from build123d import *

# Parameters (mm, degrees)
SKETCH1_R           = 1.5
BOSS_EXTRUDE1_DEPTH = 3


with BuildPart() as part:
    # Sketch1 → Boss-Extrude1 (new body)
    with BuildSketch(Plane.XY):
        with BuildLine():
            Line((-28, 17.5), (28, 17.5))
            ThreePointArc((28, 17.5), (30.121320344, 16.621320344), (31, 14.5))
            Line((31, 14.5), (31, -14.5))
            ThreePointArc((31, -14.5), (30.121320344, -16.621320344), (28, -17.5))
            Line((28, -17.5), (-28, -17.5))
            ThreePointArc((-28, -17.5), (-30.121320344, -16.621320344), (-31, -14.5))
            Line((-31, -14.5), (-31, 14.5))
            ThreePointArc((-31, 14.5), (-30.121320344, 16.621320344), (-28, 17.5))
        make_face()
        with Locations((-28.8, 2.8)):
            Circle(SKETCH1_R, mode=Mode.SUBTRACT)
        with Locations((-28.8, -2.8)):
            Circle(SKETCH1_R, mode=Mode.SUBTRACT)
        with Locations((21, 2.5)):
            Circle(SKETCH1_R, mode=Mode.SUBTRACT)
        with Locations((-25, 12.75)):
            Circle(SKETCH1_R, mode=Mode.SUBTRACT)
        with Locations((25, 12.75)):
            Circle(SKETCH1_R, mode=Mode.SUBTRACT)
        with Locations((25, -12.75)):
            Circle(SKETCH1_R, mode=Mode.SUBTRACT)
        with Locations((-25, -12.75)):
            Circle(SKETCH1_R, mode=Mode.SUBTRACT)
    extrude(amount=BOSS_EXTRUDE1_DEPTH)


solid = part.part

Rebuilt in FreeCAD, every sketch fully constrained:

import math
import FreeCAD as App
import Part
import Sketcher
from FreeCAD import Vector

doc = App.newDocument("Part")
body = doc.addObject("PartDesign::Body", "Body")

# Sketch on XY plane
sketch1 = body.newObject("Sketcher::SketchObject", "Sketch")
sketch1.AttachmentSupport = (doc.getObject("XY_Plane"), [""])
sketch1.MapMode = "FlatFace"
sketch1.addGeometry([
    Part.LineSegment(Vector(28, 17.5, 0), Vector(-28, 17.5, 0)),  # 0
    Part.ArcOfCircle(Part.Circle(Vector(-28, 14.5, 0), Vector(0, 0, 1), 3), math.radians(90), math.radians(180)),  # 1
    Part.LineSegment(Vector(-31, 14.5, 0), Vector(-31, -14.5, 0)),  # 2
    Part.ArcOfCircle(Part.Circle(Vector(-28, -14.5, 0), Vector(0, 0, 1), 3), math.radians(180), math.radians(270)),  # 3
    Part.LineSegment(Vector(-28, -17.5, 0), Vector(28, -17.5, 0)),  # 4
    Part.ArcOfCircle(Part.Circle(Vector(28, -14.5, 0), Vector(0, 0, 1), 3), math.radians(-90), math.radians(0)),  # 5
    Part.LineSegment(Vector(31, -14.5, 0), Vector(31, 14.5, 0)),  # 6
    Part.ArcOfCircle(Part.Circle(Vector(28, 14.5, 0), Vector(0, 0, 1), 3), math.radians(0), math.radians(90)),  # 7
    Part.Circle(Vector(25, -12.8, 0), Vector(0, 0, 1), 1.5),  # 8
    Part.Circle(Vector(-25, -12.8, 0), Vector(0, 0, 1), 1.5),  # 9
    Part.Circle(Vector(-28.8, -2.8, 0), Vector(0, 0, 1), 1.5),  # 10
    Part.Circle(Vector(21, 2.5, 0), Vector(0, 0, 1), 1.5),  # 11
    Part.Circle(Vector(25, 12.8, 0), Vector(0, 0, 1), 1.5),  # 12
    Part.Circle(Vector(-28.8, 2.8, 0), Vector(0, 0, 1), 1.5),  # 13
    Part.Circle(Vector(-25, 12.8, 0), Vector(0, 0, 1), 1.5),  # 14
], False)
sketch1.addConstraint([
    Sketcher.Constraint("Tangent", 0, 2, 1, 1),
    Sketcher.Constraint("Tangent", 1, 2, 2, 1),
    Sketcher.Constraint("Tangent", 2, 2, 3, 1),
    Sketcher.Constraint("Tangent", 3, 2, 4, 1),
    Sketcher.Constraint("Tangent", 4, 2, 5, 1),
    Sketcher.Constraint("Tangent", 5, 2, 6, 1),
    Sketcher.Constraint("Tangent", 6, 2, 7, 1),
    Sketcher.Constraint("Tangent", 7, 2, 0, 1),
    Sketcher.Constraint("Horizontal", 0),
    Sketcher.Constraint("Vertical", 2),
    Sketcher.Constraint("Horizontal", 4),
    Sketcher.Constraint("Vertical", 6),
    Sketcher.Constraint("Equal", 1, 3),
    Sketcher.Constraint("Equal", 3, 5),
    Sketcher.Constraint("Equal", 5, 7),
    Sketcher.Constraint("Equal", 8, 9),
    Sketcher.Constraint("Equal", 9, 10),
    Sketcher.Constraint("Equal", 10, 11),
    Sketcher.Constraint("Equal", 11, 12),
    Sketcher.Constraint("Equal", 12, 13),
    Sketcher.Constraint("Equal", 13, 14),
    Sketcher.Constraint("Symmetric", 1, 3, 5, 3, -1, 1),
    Sketcher.Constraint("Symmetric", 9, 3, 12, 3, -1, 1),
    Sketcher.Constraint("Symmetric", 8, 3, 14, 3, -1, 1),
    Sketcher.Constraint("Symmetric", 8, 3, 9, 3, -2),
    Sketcher.Constraint("Symmetric", 10, 3, 13, 3, -1),
    Sketcher.Constraint("Diameter", 8, 3.0),
    Sketcher.Constraint("Radius", 1, 3.0),
    Sketcher.Constraint("DistanceX", 0, 2, 0, 1, 56.0),
    Sketcher.Constraint("DistanceY", 2, 2, 2, 1, 29.0),
    Sketcher.Constraint("DistanceX", -1, 1, 8, 3, 25.0),
    Sketcher.Constraint("DistanceX", -1, 1, 11, 3, 21.0),
    Sketcher.Constraint("DistanceY", 11, 3, 7, 3, 12.0),
    Sketcher.Constraint("DistanceX", 10, 3, -1, 1, 28.8),
    Sketcher.Constraint("DistanceY", 10, 3, -1, 1, 2.8),
    Sketcher.Constraint("DistanceY", 8, 3, 12, 3, 25.5),
])
pad1 = body.newObject("PartDesign::Pad", "Pad")
pad1.Profile = sketch1
pad1.Length = 3

doc.recompute()
